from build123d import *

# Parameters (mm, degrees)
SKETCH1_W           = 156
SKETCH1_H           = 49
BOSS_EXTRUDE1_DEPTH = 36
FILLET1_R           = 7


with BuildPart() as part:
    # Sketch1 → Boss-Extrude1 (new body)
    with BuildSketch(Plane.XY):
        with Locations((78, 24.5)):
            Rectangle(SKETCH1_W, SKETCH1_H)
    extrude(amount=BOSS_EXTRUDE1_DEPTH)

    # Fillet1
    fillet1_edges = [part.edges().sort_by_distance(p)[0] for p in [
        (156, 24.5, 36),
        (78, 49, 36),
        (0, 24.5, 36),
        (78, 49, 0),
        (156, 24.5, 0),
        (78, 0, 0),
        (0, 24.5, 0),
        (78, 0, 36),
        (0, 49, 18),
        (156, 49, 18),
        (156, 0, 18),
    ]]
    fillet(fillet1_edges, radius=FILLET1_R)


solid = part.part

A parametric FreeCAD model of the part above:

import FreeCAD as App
import Part
import Sketcher

V = App.Vector


def edges_at(feature, points):
    """Names of the edges that pass closest to the given points."""
    edges = feature.Shape.Edges
    near = lambda p: min(range(len(edges)), key=lambda i: edges[i].distToShape(Part.Vertex(*p))[0])
    return sorted({f"Edge{near(p) + 1}" for p in points})

doc = App.newDocument("Part")
body = doc.addObject("PartDesign::Body", "Body")

sketch1 = body.newObject("Sketcher::SketchObject", "Sketch")
sketch1.AttachmentSupport = (doc.getObject("XY_Plane"), [""])
sketch1.MapMode = "FlatFace"
sketch1.addGeometry([
    Part.LineSegment(V(0, 49, 0), V(0, 0, 0)),
    Part.LineSegment(V(0, 0, 0), V(156, 0, 0)),
    Part.LineSegment(V(156, 0, 0), V(156, 49, 0)),
    Part.LineSegment(V(156, 49, 0), V(0, 49, 0)),
], False)
sketch1.addConstraint([
    Sketcher.Constraint("Coincident", 0, 2, 1, 1),
    Sketcher.Constraint("Coincident", 1, 2, 2, 1),
    Sketcher.Constraint("Coincident", 2, 2, 3, 1),
    Sketcher.Constraint("Coincident", 3, 2, 0, 1),
    Sketcher.Constraint("Vertical", 0),
    Sketcher.Constraint("Horizontal", 1),
    Sketcher.Constraint("Vertical", 2),
    Sketcher.Constraint("Horizontal", 3),
    Sketcher.Constraint("Coincident", 0, 2, -1, 1),
    Sketcher.Constraint("DistanceX", 1, 1, 1, 2, 156.0),
    Sketcher.Constraint("DistanceY", 0, 2, 0, 1, 49.0),
])
pad1 = body.newObject("PartDesign::Pad", "Pad")
pad1.Profile = sketch1
pad1.Length = 36
doc.recompute()

fillet = body.newObject("PartDesign::Fillet", "Fillet")
fillet.Base = (pad1, edges_at(pad1, [
    (156, 24.5, 36),
    (78, 49, 36),
    (0, 24.5, 36),
    (78, 49, 0),
    (156, 24.5, 0),
    (78, 0, 0),
    (0, 24.5, 0),
    (78, 0, 36),
    (0, 49, 18),
    (156, 49, 18),
    (156, 0, 18),
]))
fillet.Radius = 7

doc.recompute()
